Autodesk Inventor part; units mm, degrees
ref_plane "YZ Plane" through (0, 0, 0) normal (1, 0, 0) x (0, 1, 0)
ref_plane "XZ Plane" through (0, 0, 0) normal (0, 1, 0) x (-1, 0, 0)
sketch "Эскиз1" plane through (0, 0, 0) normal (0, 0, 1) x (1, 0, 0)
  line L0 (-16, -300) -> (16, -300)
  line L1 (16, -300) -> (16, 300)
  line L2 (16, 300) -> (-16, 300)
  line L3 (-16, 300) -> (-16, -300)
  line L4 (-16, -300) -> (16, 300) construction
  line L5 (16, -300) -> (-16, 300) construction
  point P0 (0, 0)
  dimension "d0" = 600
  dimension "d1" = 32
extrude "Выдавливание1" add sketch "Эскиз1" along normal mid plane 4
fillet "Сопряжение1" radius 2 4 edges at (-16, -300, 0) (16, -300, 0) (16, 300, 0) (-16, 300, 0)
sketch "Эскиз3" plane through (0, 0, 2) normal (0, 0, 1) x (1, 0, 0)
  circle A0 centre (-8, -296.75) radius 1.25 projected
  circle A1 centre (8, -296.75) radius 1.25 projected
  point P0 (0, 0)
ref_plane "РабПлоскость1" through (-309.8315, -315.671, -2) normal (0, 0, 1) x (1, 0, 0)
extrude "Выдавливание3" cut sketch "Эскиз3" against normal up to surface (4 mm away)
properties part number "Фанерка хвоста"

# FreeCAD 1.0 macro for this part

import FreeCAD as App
import Part
import Sketcher


def edges_at(feature, points):
    """Names of the edges that pass closest to the given points."""
    edges = feature.Shape.Edges
    near = lambda p: min(range(len(edges)), key=lambda i: edges[i].distToShape(Part.Vertex(*p))[0])
    return sorted({f"Edge{near(p) + 1}" for p in points})


def add_polygon(sketch, points):
    """Adds a closed chain of lines whose ends are joined by coincident constraints."""
    first, n = sketch.GeometryCount, len(points)
    for a, b in zip(points, points[1:] + points[:1]):
        sketch.addGeometry(Part.LineSegment(App.Vector(*a, 0), App.Vector(*b, 0)), False)
    for i in range(n):
        sketch.addConstraint(Sketcher.Constraint("Coincident", first + i, 2, first + (i + 1) % n, 1))

doc = App.newDocument("Part")
body = doc.addObject("PartDesign::Body", "Body")

sketch1 = doc.addObject("Sketcher::SketchObject", "Sketch")
body.addObject(sketch1)
sketch1.AttachmentSupport = (doc.XY_Plane, [""])
sketch1.MapMode = "FlatFace"
add_polygon(sketch1, [(-16, 300), (-16, -300), (16, -300), (16, 300)])
sketch1.addConstraint([
    Sketcher.Constraint("Vertical", 0),
    Sketcher.Constraint("Horizontal", 1),
    Sketcher.Constraint("Vertical", 2),
    Sketcher.Constraint("Horizontal", 3),
    Sketcher.Constraint("Symmetric", 0, 2, 2, 2, -1, 1),
    Sketcher.Constraint("DistanceX", 1, 1, 1, 2, 32.0),
    Sketcher.Constraint("DistanceY", 0, 2, 0, 1, 600.0),
])
pad1 = doc.addObject("PartDesign::Pad", "Pad")
body.addObject(pad1)
pad1.Profile = sketch1
pad1.Length = 4
pad1.Midplane = True
doc.recompute()

fillet = doc.addObject("PartDesign::Fillet", "Fillet")
body.addObject(fillet)
fillet.Base = (pad1, edges_at(pad1, [
    (-16, -300, 0),
    (16, -300, 0),
    (16, 300, 0),
    (-16, 300, 0),
]))
fillet.Radius = 2

sketch2 = doc.addObject("Sketcher::SketchObject", "Sketch001")
body.addObject(sketch2)
sketch2.AttachmentSupport = (doc.XY_Plane, [""])
sketch2.MapMode = "FlatFace"
sketch2.AttachmentOffset = App.Placement(App.Vector(0, 0, 2), App.Rotation())
sketch2.addGeometry([
    Part.Circle(App.Vector(-8, -296.8, 0), App.Vector(0, 0, 1), 1.2),
    Part.Circle(App.Vector(8, -296.8, 0), App.Vector(0, 0, 1), 1.2),
], False)
sketch2.addConstraint([
    Sketcher.Constraint("Equal", 0, 1),
    Sketcher.Constraint("Symmetric", 0, 3, 1, 3, -2),
    Sketcher.Constraint("Diameter", 0, 2.5),
    Sketcher.Constraint("DistanceX", 0, 3, -1, 1, 8.0),
    Sketcher.Constraint("DistanceY", 0, 3, -1, 1, 296.75),
])
pocket1 = doc.addObject("PartDesign::Pocket", "Pocket")
body.addObject(pocket1)
pocket1.Profile = sketch2
pocket1.Length = 4

doc.recompute()
